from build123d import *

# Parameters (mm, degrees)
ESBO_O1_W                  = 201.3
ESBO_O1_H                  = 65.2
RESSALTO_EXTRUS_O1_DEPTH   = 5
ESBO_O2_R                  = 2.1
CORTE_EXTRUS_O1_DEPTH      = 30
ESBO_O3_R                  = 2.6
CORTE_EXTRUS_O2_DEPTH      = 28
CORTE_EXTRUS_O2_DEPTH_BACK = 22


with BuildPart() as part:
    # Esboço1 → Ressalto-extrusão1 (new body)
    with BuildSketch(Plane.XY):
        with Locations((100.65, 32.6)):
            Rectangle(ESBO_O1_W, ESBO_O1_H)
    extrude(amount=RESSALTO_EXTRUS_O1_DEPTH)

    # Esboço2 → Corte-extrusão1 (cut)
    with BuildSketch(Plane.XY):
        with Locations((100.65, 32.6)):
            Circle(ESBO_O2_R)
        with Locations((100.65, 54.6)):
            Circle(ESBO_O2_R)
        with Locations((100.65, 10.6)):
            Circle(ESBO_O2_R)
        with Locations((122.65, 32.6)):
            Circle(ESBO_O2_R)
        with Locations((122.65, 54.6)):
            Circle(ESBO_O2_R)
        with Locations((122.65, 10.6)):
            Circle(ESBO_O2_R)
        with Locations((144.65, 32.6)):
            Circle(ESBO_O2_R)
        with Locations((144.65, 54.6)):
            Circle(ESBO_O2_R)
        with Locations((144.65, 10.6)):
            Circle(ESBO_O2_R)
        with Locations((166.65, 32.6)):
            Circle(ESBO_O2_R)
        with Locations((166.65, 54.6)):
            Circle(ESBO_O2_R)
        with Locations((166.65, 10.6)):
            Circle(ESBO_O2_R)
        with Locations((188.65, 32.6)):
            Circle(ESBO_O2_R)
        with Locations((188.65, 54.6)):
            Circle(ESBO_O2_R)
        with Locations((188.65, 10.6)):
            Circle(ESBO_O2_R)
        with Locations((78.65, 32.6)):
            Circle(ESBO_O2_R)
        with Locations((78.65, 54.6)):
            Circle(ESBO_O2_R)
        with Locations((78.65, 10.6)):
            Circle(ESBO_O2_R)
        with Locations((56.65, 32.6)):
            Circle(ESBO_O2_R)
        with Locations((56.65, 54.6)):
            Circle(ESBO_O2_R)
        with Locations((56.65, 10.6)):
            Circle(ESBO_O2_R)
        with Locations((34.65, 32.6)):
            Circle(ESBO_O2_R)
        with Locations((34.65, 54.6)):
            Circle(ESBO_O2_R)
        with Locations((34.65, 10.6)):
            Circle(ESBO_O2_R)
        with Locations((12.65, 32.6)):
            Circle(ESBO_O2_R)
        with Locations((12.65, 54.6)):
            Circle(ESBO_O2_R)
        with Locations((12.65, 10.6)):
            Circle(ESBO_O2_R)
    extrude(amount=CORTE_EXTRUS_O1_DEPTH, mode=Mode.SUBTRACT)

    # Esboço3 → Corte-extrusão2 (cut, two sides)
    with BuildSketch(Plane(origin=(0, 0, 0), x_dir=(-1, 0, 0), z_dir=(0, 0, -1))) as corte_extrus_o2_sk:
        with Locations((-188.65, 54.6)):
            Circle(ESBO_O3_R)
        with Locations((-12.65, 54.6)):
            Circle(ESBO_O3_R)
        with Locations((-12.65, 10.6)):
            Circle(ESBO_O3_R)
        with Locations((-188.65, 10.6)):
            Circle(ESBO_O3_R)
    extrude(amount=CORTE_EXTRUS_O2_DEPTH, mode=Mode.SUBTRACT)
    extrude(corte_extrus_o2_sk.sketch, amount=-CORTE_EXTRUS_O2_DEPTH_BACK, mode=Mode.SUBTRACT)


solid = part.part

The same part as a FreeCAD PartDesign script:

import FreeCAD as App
import Part
import Sketcher

V = App.Vector

doc = App.newDocument("Part")
body = doc.addObject("PartDesign::Body", "Body")

sketch1 = body.newObject("Sketcher::SketchObject", "Sketch")
sketch1.AttachmentSupport = (doc.getObject("XY_Plane"), [""])
sketch1.MapMode = "FlatFace"
sketch1.addGeometry(Part.LineSegment(V(0, 65.2, 0), V(0, 0, 0)), False)
sketch1.addGeometry(Part.LineSegment(V(0, 0, 0), V(201.3, 0, 0)), False)
sketch1.addGeometry(Part.LineSegment(V(201.3, 0, 0), V(201.3, 65.2, 0)), False)
sketch1.addGeometry(Part.LineSegment(V(201.3, 65.2, 0), V(0, 65.2, 0)), False)
sketch1.addConstraint(Sketcher.Constraint("Coincident", 0, 2, 1, 1))
sketch1.addConstraint(Sketcher.Constraint("Coincident", 1, 2, 2, 1))
sketch1.addConstraint(Sketcher.Constraint("Coincident", 2, 2, 3, 1))
sketch1.addConstraint(Sketcher.Constraint("Coincident", 3, 2, 0, 1))
sketch1.addConstraint(Sketcher.Constraint("Vertical", 0))
sketch1.addConstraint(Sketcher.Constraint("Horizontal", 1))
sketch1.addConstraint(Sketcher.Constraint("Vertical", 2))
sketch1.addConstraint(Sketcher.Constraint("Horizontal", 3))
sketch1.addConstraint(Sketcher.Constraint("Coincident", 0, 2, -1, 1))
sketch1.addConstraint(Sketcher.Constraint("DistanceX", 1, 1, 1, 2, 201.3))
sketch1.addConstraint(Sketcher.Constraint("DistanceY", 0, 2, 0, 1, 65.2))
pad1 = body.newObject("PartDesign::Pad", "Pad")
pad1.Profile = sketch1
pad1.Length = 5

sketch2 = body.newObject("Sketcher::SketchObject", "Sketch001")
sketch2.AttachmentSupport = (doc.getObject("XY_Plane"), [""])
sketch2.MapMode = "FlatFace"
sketch2.addGeometry(Part.Circle(V(100.65, 32.6, 0), V(0, 0, 1), 2.1), False)
sketch2.addGeometry(Part.Circle(V(100.65, 54.6, 0), V(0, 0, 1), 2.1), False)
sketch2.addGeometry(Part.Circle(V(100.65, 10.6, 0), V(0, 0, 1), 2.1), False)
sketch2.addGeometry(Part.Circle(V(122.65, 32.6, 0), V(0, 0, 1), 2.1), False)
sketch2.addGeometry(Part.Circle(V(122.65, 54.6, 0), V(0, 0, 1), 2.1), False)
sketch2.addGeometry(Part.Circle(V(122.65, 10.6, 0), V(0, 0, 1), 2.1), False)
sketch2.addGeometry(Part.Circle(V(144.65, 32.6, 0), V(0, 0, 1), 2.1), False)
sketch2.addGeometry(Part.Circle(V(144.65, 54.6, 0), V(0, 0, 1), 2.1), False)
sketch2.addGeometry(Part.Circle(V(144.65, 10.6, 0), V(0, 0, 1), 2.1), False)
sketch2.addGeometry(Part.Circle(V(166.65, 32.6, 0), V(0, 0, 1), 2.1), False)
sketch2.addGeometry(Part.Circle(V(166.65, 54.6, 0), V(0, 0, 1), 2.1), False)
sketch2.addGeometry(Part.Circle(V(166.65, 10.6, 0), V(0, 0, 1), 2.1), False)
sketch2.addGeometry(Part.Circle(V(188.65, 32.6, 0), V(0, 0, 1), 2.1), False)
sketch2.addGeometry(Part.Circle(V(188.65, 54.6, 0), V(0, 0, 1), 2.1), False)
sketch2.addGeometry(Part.Circle(V(188.65, 10.6, 0), V(0, 0, 1), 2.1), False)
sketch2.addGeometry(Part.Circle(V(78.65, 32.6, 0), V(0, 0, 1), 2.1), False)
sketch2.addGeometry(Part.Circle(V(78.65, 54.6, 0), V(0, 0, 1), 2.1), False)
sketch2.addGeometry(Part.Circle(V(78.65, 10.6, 0), V(0, 0, 1), 2.1), False)
sketch2.addGeometry(Part.Circle(V(56.65, 32.6, 0), V(0, 0, 1), 2.1), False)
sketch2.addGeometry(Part.Circle(V(56.65, 54.6, 0), V(0, 0, 1), 2.1), False)
sketch2.addGeometry(Part.Circle(V(56.65, 10.6, 0), V(0, 0, 1), 2.1), False)
sketch2.addGeometry(Part.Circle(V(34.65, 32.6, 0), V(0, 0, 1), 2.1), False)
sketch2.addGeometry(Part.Circle(V(34.65, 54.6, 0), V(0, 0, 1), 2.1), False)
sketch2.addGeometry(Part.Circle(V(34.65, 10.6, 0), V(0, 0, 1), 2.1), False)
sketch2.addGeometry(Part.Circle(V(12.65, 32.6, 0), V(0, 0, 1), 2.1), False)
sketch2.addGeometry(Part.Circle(V(12.65, 54.6, 0), V(0, 0, 1), 2.1), False)
sketch2.addGeometry(Part.Circle(V(12.65, 10.6, 0), V(0, 0, 1), 2.1), False)
sketch2.addConstraint(Sketcher.Constraint("Equal", 0, 1))
sketch2.addConstraint(Sketcher.Constraint("Equal", 1, 2))
sketch2.addConstraint(Sketcher.Constraint("Equal", 2, 3))
sketch2.addConstraint(Sketcher.Constraint("Equal", 3, 4))
sketch2.addConstraint(Sketcher.Constraint("Equal", 4, 5))
sketch2.addConstraint(Sketcher.Constraint("Equal", 5, 6))
sketch2.addConstraint(Sketcher.Constraint("Equal", 6, 7))
sketch2.addConstraint(Sketcher.Constraint("Equal", 7, 8))
sketch2.addConstraint(Sketcher.Constraint("Equal", 8, 9))
sketch2.addConstraint(Sketcher.Constraint("Equal", 9, 10))
sketch2.addConstraint(Sketcher.Constraint("Equal", 10, 11))
sketch2.addConstraint(Sketcher.Constraint("Equal", 11, 12))
sketch2.addConstraint(Sketcher.Constraint("Equal", 12, 13))
sketch2.addConstraint(Sketcher.Constraint("Equal", 13, 14))
sketch2.addConstraint(Sketcher.Constraint("Equal", 14, 15))
sketch2.addConstraint(Sketcher.Constraint("Equal", 15, 16))
sketch2.addConstraint(Sketcher.Constraint("Equal", 16, 17))
sketch2.addConstraint(Sketcher.Constraint("Equal", 17, 18))
sketch2.addConstraint(Sketcher.Constraint("Equal", 18, 19))
sketch2.addConstraint(Sketcher.Constraint("Equal", 19, 20))
sketch2.addConstraint(Sketcher.Constraint("Equal", 20, 21))
sketch2.addConstraint(Sketcher.Constraint("Equal", 21, 22))
sketch2.addConstraint(Sketcher.Constraint("Equal", 22, 23))
sketch2.addConstraint(Sketcher.Constraint("Equal", 23, 24))
sketch2.addConstraint(Sketcher.Constraint("Equal", 24, 25))
sketch2.addConstraint(Sketcher.Constraint("Equal", 25, 26))
sketch2.addConstraint(Sketcher.Constraint("Horizontal", 0, 3, 3, 3))
sketch2.addConstraint(Sketcher.Constraint("Horizontal", 1, 3, 4, 3))
sketch2.addConstraint(Sketcher.Constraint("Horizontal", 2, 3, 5, 3))
sketch2.addConstraint(Sketcher.Constraint("Horizontal", 3, 3, 6, 3))
sketch2.addConstraint(Sketcher.Constraint("Horizontal", 4, 3, 7, 3))
sketch2.addConstraint(Sketcher.Constraint("Horizontal", 5, 3, 8, 3))
sketch2.addConstraint(Sketcher.Constraint("Horizontal", 6, 3, 9, 3))
sketch2.addConstraint(Sketcher.Constraint("Horizontal", 7, 3, 10, 3))
sketch2.addConstraint(Sketcher.Constraint("Horizontal", 8, 3, 11, 3))
sketch2.addConstraint(Sketcher.Constraint("Horizontal", 9, 3, 12, 3))
sketch2.addConstraint(Sketcher.Constraint("Horizontal", 10, 3, 13, 3))
sketch2.addConstraint(Sketcher.Constraint("Horizontal", 11, 3, 14, 3))
sketch2.addConstraint(Sketcher.Constraint("Horizontal", 12, 3, 15, 3))
sketch2.addConstraint(Sketcher.Constraint("Horizontal", 13, 3, 16, 3))
sketch2.addConstraint(Sketcher.Constraint("Horizontal", 14, 3, 17, 3))
sketch2.addConstraint(Sketcher.Constraint("Horizontal", 15, 3, 18, 3))
sketch2.addConstraint(Sketcher.Constraint("Horizontal", 16, 3, 19, 3))
sketch2.addConstraint(Sketcher.Constraint("Horizontal", 17, 3, 20, 3))
sketch2.addConstraint(Sketcher.Constraint("Horizontal", 18, 3, 21, 3))
sketch2.addConstraint(Sketcher.Constraint("Horizontal", 19, 3, 22, 3))
sketch2.addConstraint(Sketcher.Constraint("Horizontal", 20, 3, 23, 3))
sketch2.addConstraint(Sketcher.Constraint("Horizontal", 21, 3, 24, 3))
sketch2.addConstraint(Sketcher.Constraint("Horizontal", 22, 3, 25, 3))
sketch2.addConstraint(Sketcher.Constraint("Horizontal", 23, 3, 26, 3))
sketch2.addConstraint(Sketcher.Constraint("Vertical", 0, 3, 1, 3))
sketch2.addConstraint(Sketcher.Constraint("Vertical", 1, 3, 2, 3))
sketch2.addConstraint(Sketcher.Constraint("Vertical", 3, 3, 4, 3))
sketch2.addConstraint(Sketcher.Constraint("Vertical", 4, 3, 5, 3))
sketch2.addConstraint(Sketcher.Constraint("Vertical", 6, 3, 7, 3))
sketch2.addConstraint(Sketcher.Constraint("Vertical", 7, 3, 8, 3))
sketch2.addConstraint(Sketcher.Constraint("Vertical", 9, 3, 10, 3))
sketch2.addConstraint(Sketcher.Constraint("Vertical", 10, 3, 11, 3))
sketch2.addConstraint(Sketcher.Constraint("Vertical", 12, 3, 13, 3))
sketch2.addConstraint(Sketcher.Constraint("Vertical", 13, 3, 14, 3))
sketch2.addConstraint(Sketcher.Constraint("Vertical", 15, 3, 16, 3))
sketch2.addConstraint(Sketcher.Constraint("Vertical", 16, 3, 17, 3))
sketch2.addConstraint(Sketcher.Constraint("Vertical", 18, 3, 19, 3))
sketch2.addConstraint(Sketcher.Constraint("Vertical", 19, 3, 20, 3))
sketch2.addConstraint(Sketcher.Constraint("Vertical", 21, 3, 22, 3))
sketch2.addConstraint(Sketcher.Constraint("Vertical", 22, 3, 23, 3))
sketch2.addConstraint(Sketcher.Constraint("Vertical", 24, 3, 25, 3))
sketch2.addConstraint(Sketcher.Constraint("Vertical", 25, 3, 26, 3))
sketch2.addConstraint(Sketcher.Constraint("Diameter", 0, 4.2))
sketch2.addConstraint(Sketcher.Constraint("DistanceY", 0, 3, 1, 3, 22.0))
sketch2.addConstraint(Sketcher.Constraint("DistanceY", 2, 3, 0, 3, 22.0))
sketch2.addConstraint(Sketcher.Constraint("DistanceX", 0, 3, 3, 3, 22.0))
sketch2.addConstraint(Sketcher.Constraint("DistanceX", 3, 3, 6, 3, 22.0))
sketch2.addConstraint(Sketcher.Constraint("DistanceX", 6, 3, 9, 3, 22.0))
sketch2.addConstraint(Sketcher.Constraint("DistanceX", 9, 3, 12, 3, 22.0))
sketch2.addConstraint(Sketcher.Constraint("DistanceX", 15, 3, 0, 3, 22.0))
sketch2.addConstraint(Sketcher.Constraint("DistanceX", 18, 3, 15, 3, 22.0))
sketch2.addConstraint(Sketcher.Constraint("DistanceX", 21, 3, 18, 3, 22.0))
sketch2.addConstraint(Sketcher.Constraint("DistanceX", 24, 3, 21, 3, 22.0))
sketch2.addConstraint(Sketcher.Constraint("DistanceY", -1, 1, 0, 3, 32.6))
sketch2.addConstraint(Sketcher.Constraint("DistanceX", -1, 1, 0, 3, 100.65))
pocket1 = body.newObject("PartDesign::Pocket", "Pocket")
pocket1.Profile = sketch2
pocket1.Length = 30
pocket1.Reversed = True

sketch3 = body.newObject("Sketcher::SketchObject", "Sketch002")
sketch3.AttachmentSupport = (doc.getObject("XY_Plane"), [""])
sketch3.MapMode = "FlatFace"
sketch3.addGeometry(Part.Circle(V(188.65, 54.6, 0), V(0, 0, 1), 2.6), False)
sketch3.addGeometry(Part.Circle(V(12.65, 54.6, 0), V(0, 0, 1), 2.6), False)
sketch3.addGeometry(Part.Circle(V(12.65, 10.6, 0), V(0, 0, 1), 2.6), False)
sketch3.addGeometry(Part.Circle(V(188.65, 10.6, 0), V(0, 0, 1), 2.6), False)
sketch3.addConstraint(Sketcher.Constraint("Equal", 0, 1))
sketch3.addConstraint(Sketcher.Constraint("Equal", 1, 2))
sketch3.addConstraint(Sketcher.Constraint("Equal", 2, 3))
sketch3.addConstraint(Sketcher.Constraint("Horizontal", 0, 3, 1, 3))
sketch3.addConstraint(Sketcher.Constraint("Horizontal", 2, 3, 3, 3))
sketch3.addConstraint(Sketcher.Constraint("Vertical", 1, 3, 2, 3))
sketch3.addConstraint(Sketcher.Constraint("Vertical", 0, 3, 3, 3))
sketch3.addConstraint(Sketcher.Constraint("Diameter", 0, 5.2))
sketch3.addConstraint(Sketcher.Constraint("DistanceX", 1, 3, 0, 3, 176.0))
sketch3.addConstraint(Sketcher.Constraint("DistanceY", 2, 3, 1, 3, 44.0))
sketch3.addConstraint(Sketcher.Constraint("DistanceY", -1, 1, 0, 3, 54.6))
sketch3.addConstraint(Sketcher.Constraint("DistanceX", -1, 1, 0, 3, 188.65))
pocket2 = body.newObject("PartDesign::Pocket", "Pocket001")
pocket2.Profile = sketch3
pocket2.Type = "ThroughAll"
pocket2.Midplane = True

doc.recompute()
